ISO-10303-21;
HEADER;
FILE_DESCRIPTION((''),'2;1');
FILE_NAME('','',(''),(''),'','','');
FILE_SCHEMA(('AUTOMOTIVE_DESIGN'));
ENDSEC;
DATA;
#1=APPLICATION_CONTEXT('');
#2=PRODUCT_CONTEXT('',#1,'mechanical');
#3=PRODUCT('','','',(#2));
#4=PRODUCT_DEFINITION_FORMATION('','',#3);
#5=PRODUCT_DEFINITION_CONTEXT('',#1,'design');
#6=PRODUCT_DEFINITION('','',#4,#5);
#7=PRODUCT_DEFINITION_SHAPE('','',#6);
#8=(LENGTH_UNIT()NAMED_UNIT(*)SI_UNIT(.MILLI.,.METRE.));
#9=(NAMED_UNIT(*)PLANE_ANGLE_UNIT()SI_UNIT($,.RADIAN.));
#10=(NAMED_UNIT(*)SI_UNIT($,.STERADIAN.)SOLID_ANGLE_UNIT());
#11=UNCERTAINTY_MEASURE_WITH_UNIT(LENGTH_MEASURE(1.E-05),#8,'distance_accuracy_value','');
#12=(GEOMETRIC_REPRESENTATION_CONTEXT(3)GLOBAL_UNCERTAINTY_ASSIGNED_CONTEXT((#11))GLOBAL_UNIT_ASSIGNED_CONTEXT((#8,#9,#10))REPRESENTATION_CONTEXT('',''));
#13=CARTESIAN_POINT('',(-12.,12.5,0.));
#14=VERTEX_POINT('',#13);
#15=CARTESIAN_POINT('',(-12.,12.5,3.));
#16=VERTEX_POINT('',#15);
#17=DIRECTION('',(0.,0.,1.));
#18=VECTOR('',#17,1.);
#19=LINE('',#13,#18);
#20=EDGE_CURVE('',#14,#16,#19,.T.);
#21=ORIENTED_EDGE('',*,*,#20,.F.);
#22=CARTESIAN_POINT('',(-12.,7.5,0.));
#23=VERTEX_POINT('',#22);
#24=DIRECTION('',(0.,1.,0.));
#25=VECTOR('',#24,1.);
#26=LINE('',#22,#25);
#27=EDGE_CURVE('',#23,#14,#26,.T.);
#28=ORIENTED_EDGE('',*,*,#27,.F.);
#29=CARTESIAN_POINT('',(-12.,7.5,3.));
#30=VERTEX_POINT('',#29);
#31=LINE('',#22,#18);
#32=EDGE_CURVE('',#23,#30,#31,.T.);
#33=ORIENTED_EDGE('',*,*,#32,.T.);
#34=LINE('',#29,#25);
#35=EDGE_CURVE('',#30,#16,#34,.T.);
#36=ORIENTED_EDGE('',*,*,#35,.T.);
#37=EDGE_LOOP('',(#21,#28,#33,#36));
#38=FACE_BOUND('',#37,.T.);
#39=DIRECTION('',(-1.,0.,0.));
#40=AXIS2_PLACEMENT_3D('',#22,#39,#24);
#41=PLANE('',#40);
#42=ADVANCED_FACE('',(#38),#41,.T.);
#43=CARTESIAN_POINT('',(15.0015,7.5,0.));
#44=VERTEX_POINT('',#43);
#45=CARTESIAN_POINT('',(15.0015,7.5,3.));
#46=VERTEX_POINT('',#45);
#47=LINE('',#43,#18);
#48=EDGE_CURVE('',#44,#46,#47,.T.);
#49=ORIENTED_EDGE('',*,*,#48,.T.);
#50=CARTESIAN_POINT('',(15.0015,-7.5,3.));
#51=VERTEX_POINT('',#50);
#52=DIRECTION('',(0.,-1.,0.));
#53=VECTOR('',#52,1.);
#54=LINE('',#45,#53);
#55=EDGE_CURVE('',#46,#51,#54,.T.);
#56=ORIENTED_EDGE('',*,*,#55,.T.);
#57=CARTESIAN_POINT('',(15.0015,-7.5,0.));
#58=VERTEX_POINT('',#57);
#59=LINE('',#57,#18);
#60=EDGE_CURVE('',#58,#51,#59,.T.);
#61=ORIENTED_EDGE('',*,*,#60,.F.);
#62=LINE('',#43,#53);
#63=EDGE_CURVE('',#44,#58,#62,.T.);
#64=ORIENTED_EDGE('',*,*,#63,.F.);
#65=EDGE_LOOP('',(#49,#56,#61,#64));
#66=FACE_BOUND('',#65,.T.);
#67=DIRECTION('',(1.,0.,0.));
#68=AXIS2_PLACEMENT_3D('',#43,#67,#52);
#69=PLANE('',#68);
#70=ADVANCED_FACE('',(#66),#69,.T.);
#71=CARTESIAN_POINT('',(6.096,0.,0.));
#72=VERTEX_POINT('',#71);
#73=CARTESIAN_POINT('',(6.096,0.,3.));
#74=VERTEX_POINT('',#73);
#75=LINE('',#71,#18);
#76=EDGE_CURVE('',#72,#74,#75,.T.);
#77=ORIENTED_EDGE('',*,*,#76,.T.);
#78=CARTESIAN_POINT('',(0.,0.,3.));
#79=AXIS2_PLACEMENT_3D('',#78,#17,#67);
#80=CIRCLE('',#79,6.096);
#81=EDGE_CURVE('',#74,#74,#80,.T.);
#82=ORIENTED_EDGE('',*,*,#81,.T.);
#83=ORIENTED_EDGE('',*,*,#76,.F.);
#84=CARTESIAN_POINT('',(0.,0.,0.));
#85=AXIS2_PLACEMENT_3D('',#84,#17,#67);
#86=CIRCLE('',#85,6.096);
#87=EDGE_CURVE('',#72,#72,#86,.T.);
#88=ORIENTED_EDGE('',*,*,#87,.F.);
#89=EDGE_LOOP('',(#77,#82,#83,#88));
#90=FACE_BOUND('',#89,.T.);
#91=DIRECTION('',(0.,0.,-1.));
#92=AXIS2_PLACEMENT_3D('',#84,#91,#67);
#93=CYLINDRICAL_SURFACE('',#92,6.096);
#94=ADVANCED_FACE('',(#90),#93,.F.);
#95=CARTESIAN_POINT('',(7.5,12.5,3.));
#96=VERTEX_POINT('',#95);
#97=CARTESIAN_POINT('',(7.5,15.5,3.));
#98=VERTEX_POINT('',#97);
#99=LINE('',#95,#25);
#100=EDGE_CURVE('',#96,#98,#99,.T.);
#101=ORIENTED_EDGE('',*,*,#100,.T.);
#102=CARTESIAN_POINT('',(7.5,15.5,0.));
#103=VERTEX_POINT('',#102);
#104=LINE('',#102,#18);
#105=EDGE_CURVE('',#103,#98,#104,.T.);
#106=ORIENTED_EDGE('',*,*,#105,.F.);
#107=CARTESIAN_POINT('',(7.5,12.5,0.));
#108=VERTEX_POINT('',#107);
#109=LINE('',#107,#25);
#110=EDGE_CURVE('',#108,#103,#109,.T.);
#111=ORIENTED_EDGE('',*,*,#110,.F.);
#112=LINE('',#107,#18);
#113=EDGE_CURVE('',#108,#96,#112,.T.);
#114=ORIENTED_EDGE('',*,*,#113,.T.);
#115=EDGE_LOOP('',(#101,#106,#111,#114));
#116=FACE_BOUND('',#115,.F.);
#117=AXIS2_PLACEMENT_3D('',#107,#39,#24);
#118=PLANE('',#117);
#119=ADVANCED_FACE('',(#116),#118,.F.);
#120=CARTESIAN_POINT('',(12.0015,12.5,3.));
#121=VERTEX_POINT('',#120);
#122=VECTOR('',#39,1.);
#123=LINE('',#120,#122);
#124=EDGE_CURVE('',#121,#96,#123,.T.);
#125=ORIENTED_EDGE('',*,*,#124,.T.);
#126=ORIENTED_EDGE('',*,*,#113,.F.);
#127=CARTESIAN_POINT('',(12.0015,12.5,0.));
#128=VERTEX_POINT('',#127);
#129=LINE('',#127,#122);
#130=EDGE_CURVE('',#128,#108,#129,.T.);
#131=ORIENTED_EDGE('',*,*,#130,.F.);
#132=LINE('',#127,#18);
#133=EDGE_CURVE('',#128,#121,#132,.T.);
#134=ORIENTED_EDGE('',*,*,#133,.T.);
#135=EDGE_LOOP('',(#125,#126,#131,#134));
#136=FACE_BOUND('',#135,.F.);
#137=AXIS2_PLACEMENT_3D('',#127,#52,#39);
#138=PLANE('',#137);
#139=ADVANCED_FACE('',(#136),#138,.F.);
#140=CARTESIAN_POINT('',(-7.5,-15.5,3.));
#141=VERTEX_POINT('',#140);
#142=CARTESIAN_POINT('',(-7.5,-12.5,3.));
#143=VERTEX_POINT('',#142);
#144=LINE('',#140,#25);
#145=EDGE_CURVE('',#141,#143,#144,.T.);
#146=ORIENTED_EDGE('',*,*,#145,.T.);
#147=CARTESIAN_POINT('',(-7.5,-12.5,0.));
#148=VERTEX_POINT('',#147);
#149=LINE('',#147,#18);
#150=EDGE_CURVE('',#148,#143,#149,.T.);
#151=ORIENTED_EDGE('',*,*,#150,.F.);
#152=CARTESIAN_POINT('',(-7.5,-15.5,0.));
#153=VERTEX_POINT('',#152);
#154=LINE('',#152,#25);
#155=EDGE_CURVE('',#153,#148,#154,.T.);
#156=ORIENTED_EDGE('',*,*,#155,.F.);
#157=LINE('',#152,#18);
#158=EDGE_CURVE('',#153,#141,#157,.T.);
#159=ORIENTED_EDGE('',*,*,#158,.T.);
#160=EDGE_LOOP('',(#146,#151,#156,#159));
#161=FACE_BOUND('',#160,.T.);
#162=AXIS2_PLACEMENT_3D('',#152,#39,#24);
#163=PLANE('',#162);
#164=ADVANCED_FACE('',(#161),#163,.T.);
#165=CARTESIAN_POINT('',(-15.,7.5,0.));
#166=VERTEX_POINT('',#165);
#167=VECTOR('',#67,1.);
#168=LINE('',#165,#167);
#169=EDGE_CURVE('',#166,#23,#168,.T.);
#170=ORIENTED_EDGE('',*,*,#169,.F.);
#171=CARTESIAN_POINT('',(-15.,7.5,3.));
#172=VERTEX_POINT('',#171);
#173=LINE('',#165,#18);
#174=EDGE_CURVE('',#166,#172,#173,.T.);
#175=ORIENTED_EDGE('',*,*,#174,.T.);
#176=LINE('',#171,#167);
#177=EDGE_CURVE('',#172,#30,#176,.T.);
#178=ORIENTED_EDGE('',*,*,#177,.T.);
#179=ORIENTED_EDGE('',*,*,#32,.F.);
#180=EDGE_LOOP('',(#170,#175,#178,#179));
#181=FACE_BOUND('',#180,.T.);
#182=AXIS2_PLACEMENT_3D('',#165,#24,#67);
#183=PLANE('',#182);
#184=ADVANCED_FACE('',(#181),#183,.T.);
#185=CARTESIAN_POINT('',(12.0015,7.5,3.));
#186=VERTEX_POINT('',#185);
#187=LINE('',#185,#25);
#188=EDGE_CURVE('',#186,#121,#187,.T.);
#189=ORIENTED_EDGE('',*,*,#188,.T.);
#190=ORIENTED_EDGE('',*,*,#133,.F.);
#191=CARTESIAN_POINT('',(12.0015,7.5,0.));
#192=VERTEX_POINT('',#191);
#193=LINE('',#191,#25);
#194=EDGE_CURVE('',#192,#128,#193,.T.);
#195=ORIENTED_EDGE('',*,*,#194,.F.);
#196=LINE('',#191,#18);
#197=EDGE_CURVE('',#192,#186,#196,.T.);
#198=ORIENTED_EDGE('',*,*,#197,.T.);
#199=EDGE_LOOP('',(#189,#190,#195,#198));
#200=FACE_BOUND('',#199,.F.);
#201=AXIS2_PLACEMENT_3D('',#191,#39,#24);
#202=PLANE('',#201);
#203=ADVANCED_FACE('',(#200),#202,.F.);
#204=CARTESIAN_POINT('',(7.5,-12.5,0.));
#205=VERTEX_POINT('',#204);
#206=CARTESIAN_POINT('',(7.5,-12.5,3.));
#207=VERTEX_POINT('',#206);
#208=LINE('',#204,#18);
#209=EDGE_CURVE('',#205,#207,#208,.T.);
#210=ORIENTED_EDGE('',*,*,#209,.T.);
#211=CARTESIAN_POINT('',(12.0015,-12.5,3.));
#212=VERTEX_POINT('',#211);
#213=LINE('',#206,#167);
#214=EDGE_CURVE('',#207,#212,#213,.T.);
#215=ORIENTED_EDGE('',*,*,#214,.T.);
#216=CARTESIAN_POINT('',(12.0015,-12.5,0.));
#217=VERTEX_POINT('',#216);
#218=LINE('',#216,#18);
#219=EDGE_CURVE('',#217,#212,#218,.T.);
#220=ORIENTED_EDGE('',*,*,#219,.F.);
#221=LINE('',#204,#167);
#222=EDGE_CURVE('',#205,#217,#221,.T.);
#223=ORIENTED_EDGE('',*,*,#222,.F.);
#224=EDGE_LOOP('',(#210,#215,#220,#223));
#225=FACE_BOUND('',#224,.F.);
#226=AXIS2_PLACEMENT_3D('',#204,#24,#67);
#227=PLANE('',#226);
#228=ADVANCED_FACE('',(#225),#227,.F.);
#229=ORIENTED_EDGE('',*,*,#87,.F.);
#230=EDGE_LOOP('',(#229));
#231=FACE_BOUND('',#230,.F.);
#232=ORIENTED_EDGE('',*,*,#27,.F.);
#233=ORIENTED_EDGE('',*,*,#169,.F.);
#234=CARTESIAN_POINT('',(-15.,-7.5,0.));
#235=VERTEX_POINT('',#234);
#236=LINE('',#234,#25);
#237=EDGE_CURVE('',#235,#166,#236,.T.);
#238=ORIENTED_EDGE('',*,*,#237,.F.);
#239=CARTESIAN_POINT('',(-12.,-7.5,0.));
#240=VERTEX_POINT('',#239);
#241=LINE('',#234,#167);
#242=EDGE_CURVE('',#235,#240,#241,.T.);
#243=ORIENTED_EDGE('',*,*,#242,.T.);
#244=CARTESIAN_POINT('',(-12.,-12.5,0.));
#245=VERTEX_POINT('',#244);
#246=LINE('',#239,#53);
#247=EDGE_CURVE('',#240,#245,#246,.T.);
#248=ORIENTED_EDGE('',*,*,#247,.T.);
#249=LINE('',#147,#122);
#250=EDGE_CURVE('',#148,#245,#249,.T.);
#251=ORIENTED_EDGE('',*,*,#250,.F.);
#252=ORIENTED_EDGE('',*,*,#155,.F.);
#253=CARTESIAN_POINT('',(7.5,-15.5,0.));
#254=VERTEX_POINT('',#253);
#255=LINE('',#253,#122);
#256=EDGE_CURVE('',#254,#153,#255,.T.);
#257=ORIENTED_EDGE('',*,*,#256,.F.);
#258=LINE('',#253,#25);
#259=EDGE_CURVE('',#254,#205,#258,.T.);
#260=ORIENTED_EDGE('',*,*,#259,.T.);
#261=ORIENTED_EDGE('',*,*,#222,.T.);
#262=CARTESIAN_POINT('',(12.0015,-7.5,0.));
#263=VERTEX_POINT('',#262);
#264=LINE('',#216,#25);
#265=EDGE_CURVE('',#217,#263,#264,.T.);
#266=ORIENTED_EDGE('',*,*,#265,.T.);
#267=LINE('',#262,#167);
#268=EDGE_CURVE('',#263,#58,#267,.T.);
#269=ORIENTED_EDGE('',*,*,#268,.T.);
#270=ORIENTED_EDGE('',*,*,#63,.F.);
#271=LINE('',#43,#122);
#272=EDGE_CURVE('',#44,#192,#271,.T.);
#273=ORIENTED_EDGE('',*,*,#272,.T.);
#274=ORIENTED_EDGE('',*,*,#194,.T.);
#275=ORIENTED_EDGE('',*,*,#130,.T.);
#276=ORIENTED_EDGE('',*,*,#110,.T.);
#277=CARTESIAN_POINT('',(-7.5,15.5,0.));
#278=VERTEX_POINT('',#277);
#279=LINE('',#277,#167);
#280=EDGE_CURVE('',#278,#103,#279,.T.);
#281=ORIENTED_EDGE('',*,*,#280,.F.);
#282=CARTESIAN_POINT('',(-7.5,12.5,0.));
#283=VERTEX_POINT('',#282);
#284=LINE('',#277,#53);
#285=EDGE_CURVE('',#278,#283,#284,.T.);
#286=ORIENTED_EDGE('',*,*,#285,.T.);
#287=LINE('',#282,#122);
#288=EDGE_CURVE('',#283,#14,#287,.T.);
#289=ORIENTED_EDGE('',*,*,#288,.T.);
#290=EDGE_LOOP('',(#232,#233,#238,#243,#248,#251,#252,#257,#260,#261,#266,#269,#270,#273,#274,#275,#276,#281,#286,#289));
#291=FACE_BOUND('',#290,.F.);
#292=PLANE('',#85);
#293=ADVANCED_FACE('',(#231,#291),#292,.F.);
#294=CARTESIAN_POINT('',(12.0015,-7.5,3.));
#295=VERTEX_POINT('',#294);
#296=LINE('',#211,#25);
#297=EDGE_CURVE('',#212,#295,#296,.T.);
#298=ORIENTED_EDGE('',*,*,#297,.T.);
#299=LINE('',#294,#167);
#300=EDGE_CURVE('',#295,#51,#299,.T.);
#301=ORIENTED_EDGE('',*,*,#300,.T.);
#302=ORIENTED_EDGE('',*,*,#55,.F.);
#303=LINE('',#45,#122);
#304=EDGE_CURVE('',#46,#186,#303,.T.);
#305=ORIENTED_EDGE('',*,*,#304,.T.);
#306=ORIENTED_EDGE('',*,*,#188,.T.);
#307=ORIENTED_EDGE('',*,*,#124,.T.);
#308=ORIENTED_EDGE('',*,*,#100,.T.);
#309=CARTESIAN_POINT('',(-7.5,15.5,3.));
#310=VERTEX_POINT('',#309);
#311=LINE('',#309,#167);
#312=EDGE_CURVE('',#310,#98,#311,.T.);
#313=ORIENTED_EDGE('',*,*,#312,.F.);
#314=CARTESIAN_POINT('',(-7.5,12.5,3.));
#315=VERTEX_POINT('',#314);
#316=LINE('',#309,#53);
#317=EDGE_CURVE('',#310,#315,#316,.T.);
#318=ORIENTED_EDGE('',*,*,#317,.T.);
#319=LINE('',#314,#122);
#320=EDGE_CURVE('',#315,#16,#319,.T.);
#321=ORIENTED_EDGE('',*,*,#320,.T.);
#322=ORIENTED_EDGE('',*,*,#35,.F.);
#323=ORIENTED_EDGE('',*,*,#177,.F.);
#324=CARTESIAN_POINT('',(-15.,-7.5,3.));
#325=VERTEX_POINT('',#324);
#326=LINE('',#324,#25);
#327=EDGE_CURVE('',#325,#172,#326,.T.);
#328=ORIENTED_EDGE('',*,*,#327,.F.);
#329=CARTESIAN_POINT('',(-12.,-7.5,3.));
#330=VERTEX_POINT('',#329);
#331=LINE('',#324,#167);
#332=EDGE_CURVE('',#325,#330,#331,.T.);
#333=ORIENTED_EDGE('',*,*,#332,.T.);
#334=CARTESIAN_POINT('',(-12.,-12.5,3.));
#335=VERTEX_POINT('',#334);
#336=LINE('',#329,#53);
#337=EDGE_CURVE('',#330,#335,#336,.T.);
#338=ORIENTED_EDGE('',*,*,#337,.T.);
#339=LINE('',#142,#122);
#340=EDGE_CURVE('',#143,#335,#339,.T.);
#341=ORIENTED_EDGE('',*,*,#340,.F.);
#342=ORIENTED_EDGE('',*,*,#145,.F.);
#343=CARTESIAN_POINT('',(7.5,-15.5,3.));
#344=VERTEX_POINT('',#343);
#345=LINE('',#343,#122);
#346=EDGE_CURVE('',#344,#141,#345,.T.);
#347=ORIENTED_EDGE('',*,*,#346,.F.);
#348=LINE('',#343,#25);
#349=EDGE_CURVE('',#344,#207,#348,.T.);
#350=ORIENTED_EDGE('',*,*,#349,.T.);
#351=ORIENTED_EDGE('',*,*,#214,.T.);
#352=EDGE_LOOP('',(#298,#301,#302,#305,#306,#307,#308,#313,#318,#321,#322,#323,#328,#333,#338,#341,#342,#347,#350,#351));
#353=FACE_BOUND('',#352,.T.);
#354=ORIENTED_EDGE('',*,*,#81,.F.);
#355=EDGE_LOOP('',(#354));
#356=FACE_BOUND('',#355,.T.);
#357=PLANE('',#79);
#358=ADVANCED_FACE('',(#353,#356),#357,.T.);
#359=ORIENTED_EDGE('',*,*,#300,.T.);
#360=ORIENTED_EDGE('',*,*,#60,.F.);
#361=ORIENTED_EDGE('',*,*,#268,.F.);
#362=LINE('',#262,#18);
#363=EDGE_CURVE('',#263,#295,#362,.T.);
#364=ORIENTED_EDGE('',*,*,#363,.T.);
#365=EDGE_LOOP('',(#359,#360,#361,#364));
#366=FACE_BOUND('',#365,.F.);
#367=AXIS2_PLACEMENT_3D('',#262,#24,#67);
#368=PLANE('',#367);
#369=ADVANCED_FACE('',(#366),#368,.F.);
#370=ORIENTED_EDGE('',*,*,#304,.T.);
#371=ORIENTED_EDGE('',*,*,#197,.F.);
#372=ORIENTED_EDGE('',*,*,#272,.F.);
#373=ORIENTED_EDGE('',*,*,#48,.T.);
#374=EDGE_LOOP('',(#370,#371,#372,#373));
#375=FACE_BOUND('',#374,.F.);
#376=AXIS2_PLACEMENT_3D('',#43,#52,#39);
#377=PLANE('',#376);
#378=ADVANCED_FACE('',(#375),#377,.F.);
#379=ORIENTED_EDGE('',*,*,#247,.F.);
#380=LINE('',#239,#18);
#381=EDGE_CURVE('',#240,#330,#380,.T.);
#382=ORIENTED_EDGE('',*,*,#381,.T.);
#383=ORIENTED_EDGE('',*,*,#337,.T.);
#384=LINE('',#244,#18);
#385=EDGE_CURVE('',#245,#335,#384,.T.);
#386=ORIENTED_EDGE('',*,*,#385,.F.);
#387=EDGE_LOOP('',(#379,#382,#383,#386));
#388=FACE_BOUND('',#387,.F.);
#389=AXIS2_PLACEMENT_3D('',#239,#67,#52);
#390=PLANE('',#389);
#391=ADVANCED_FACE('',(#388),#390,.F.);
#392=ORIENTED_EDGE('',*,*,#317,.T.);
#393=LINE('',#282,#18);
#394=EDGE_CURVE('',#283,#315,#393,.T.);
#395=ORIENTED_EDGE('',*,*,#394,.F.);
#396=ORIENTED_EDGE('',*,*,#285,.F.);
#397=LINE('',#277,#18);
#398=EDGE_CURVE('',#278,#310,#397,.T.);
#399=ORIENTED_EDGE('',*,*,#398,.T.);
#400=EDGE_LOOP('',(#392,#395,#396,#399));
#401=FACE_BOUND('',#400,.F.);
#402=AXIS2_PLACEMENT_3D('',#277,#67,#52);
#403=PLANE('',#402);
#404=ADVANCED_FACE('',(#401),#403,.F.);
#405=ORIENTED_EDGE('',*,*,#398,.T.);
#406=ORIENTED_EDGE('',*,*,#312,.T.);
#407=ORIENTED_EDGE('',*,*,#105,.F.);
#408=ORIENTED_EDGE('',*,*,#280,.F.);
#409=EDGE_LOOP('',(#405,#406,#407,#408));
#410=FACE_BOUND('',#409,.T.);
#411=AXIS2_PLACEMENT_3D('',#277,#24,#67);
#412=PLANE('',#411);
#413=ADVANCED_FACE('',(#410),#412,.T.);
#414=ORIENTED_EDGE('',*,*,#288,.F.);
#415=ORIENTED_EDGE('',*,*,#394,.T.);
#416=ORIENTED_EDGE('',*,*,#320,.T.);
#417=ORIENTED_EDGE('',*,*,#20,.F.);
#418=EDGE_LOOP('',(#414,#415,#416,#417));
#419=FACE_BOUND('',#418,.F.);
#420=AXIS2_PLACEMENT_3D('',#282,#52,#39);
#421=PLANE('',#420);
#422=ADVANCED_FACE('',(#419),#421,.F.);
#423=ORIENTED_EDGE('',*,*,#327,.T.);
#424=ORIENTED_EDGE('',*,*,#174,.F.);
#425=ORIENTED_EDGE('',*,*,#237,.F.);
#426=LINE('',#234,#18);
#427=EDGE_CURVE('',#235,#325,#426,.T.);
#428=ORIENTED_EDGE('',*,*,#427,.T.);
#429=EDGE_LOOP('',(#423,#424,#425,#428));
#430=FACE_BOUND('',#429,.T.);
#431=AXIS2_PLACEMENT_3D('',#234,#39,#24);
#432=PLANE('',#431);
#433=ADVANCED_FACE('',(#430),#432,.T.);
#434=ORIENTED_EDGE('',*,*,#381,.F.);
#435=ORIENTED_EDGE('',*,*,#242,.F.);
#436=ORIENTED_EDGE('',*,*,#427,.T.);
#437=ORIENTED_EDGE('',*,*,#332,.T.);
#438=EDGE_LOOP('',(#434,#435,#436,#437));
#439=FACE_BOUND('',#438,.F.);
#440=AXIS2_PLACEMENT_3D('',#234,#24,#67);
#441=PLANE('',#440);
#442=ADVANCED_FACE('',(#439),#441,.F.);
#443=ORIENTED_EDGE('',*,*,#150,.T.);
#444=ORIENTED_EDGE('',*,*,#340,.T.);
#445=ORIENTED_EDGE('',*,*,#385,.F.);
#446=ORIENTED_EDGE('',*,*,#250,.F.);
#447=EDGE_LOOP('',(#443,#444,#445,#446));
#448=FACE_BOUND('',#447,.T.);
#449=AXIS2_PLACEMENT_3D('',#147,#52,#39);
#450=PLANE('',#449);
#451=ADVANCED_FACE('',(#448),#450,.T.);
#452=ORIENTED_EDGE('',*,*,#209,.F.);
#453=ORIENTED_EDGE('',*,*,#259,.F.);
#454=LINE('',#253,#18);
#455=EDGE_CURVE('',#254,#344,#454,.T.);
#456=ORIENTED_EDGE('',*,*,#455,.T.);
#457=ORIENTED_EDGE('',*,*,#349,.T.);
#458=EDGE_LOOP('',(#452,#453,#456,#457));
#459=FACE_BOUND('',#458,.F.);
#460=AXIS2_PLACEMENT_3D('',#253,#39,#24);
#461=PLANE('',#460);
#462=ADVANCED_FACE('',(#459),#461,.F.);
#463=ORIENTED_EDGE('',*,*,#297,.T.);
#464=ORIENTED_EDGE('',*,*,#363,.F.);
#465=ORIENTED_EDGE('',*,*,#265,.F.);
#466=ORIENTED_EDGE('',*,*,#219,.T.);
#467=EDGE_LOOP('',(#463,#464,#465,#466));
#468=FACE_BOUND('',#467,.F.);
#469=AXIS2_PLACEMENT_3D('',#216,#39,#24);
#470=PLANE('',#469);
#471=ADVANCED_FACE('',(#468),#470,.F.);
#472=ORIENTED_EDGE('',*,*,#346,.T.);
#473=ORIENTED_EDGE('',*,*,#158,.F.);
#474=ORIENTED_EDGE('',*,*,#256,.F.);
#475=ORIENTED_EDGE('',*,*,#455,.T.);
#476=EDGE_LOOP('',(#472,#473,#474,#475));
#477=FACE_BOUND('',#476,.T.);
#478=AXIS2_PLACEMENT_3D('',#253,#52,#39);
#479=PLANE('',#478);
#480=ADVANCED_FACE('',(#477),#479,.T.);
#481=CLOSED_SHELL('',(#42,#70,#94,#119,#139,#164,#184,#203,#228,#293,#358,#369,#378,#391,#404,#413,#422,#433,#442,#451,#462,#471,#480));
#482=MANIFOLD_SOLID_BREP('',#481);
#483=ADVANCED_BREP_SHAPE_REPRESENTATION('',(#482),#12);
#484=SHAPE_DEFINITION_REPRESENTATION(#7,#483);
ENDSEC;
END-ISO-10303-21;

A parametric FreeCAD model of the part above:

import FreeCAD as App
import Part
import Sketcher
from FreeCAD import Vector

doc = App.newDocument("Part")
body = doc.addObject("PartDesign::Body", "Body")

# Sketch on XY plane
sketch1 = doc.addObject("Sketcher::SketchObject", "Sketch")
body.addObject(sketch1)
sketch1.AttachmentSupport = (doc.XY_Plane, [""])
sketch1.MapMode = "FlatFace"
sketch1.addGeometry([
    Part.LineSegment(Vector(15.0015, -7.5, 0), Vector(15.0015, 7.5, 0)),  # 0
    Part.LineSegment(Vector(15.0015, 7.5, 0), Vector(12.0015, 7.5, 0)),  # 1
    Part.LineSegment(Vector(12.0015, 7.5, 0), Vector(12.0015, 12.5, 0)),  # 2
    Part.LineSegment(Vector(12.0015, 12.5, 0), Vector(7.5, 12.5, 0)),  # 3
    Part.LineSegment(Vector(7.5, 12.5, 0), Vector(7.5, 15.5, 0)),  # 4
    Part.LineSegment(Vector(7.5, 15.5, 0), Vector(-7.5, 15.5, 0)),  # 5
    Part.LineSegment(Vector(-7.5, 15.5, 0), Vector(-7.5, 12.5, 0)),  # 6
    Part.LineSegment(Vector(-7.5, 12.5, 0), Vector(-12, 12.5, 0)),  # 7
    Part.LineSegment(Vector(-12, 12.5, 0), Vector(-12, 7.5, 0)),  # 8
    Part.LineSegment(Vector(-12, 7.5, 0), Vector(-15, 7.5, 0)),  # 9
    Part.LineSegment(Vector(-15, 7.5, 0), Vector(-15, -7.5, 0)),  # 10
    Part.LineSegment(Vector(-15, -7.5, 0), Vector(-12, -7.5, 0)),  # 11
    Part.LineSegment(Vector(-12, -7.5, 0), Vector(-12, -12.5, 0)),  # 12
    Part.LineSegment(Vector(-12, -12.5, 0), Vector(-7.5, -12.5, 0)),  # 13
    Part.LineSegment(Vector(-7.5, -12.5, 0), Vector(-7.5, -15.5, 0)),  # 14
    Part.LineSegment(Vector(-7.5, -15.5, 0), Vector(7.5, -15.5, 0)),  # 15
    Part.LineSegment(Vector(7.5, -15.5, 0), Vector(7.5, -12.5, 0)),  # 16
    Part.LineSegment(Vector(7.5, -12.5, 0), Vector(12.0015, -12.5, 0)),  # 17
    Part.LineSegment(Vector(12.0015, -12.5, 0), Vector(12.0015, -7.5, 0)),  # 18
    Part.LineSegment(Vector(12.0015, -7.5, 0), Vector(15.0015, -7.5, 0)),  # 19
    Part.Circle(Vector(0, 0, 0), Vector(0, 0, 1), 6.096),  # 20
], False)
sketch1.addConstraint([
    Sketcher.Constraint("Coincident", 0, 2, 1, 1),
    Sketcher.Constraint("Coincident", 1, 2, 2, 1),
    Sketcher.Constraint("Coincident", 2, 2, 3, 1),
    Sketcher.Constraint("Coincident", 3, 2, 4, 1),
    Sketcher.Constraint("Coincident", 4, 2, 5, 1),
    Sketcher.Constraint("Coincident", 5, 2, 6, 1),
    Sketcher.Constraint("Coincident", 6, 2, 7, 1),
    Sketcher.Constraint("Coincident", 7, 2, 8, 1),
    Sketcher.Constraint("Coincident", 8, 2, 9, 1),
    Sketcher.Constraint("Coincident", 9, 2, 10, 1),
    Sketcher.Constraint("Coincident", 10, 2, 11, 1),
    Sketcher.Constraint("Coincident", 11, 2, 12, 1),
    Sketcher.Constraint("Coincident", 12, 2, 13, 1),
    Sketcher.Constraint("Coincident", 13, 2, 14, 1),
    Sketcher.Constraint("Coincident", 14, 2, 15, 1),
    Sketcher.Constraint("Coincident", 15, 2, 16, 1),
    Sketcher.Constraint("Coincident", 16, 2, 17, 1),
    Sketcher.Constraint("Coincident", 17, 2, 18, 1),
    Sketcher.Constraint("Coincident", 18, 2, 19, 1),
    Sketcher.Constraint("Coincident", 19, 2, 0, 1),
    Sketcher.Constraint("Vertical", 0),
    Sketcher.Constraint("Horizontal", 1),
    Sketcher.Constraint("Vertical", 2),
    Sketcher.Constraint("Horizontal", 3),
    Sketcher.Constraint("Vertical", 4),
    Sketcher.Constraint("Horizontal", 5),
    Sketcher.Constraint("Vertical", 6),
    Sketcher.Constraint("Horizontal", 7),
    Sketcher.Constraint("Vertical", 8),
    Sketcher.Constraint("Horizontal", 9),
    Sketcher.Constraint("Vertical", 10),
    Sketcher.Constraint("Horizontal", 11),
    Sketcher.Constraint("Vertical", 12),
    Sketcher.Constraint("Horizontal", 13),
    Sketcher.Constraint("Vertical", 14),
    Sketcher.Constraint("Horizontal", 15),
    Sketcher.Constraint("Vertical", 16),
    Sketcher.Constraint("Horizontal", 17),
    Sketcher.Constraint("Vertical", 18),
    Sketcher.Constraint("Horizontal", 19),
    Sketcher.Constraint("Coincident", 20, 3, -1, 1),
    Sketcher.Constraint("Symmetric", 3, 2, 13, 2, -1, 1),
    Sketcher.Constraint("Symmetric", 5, 2, 15, 2, -1, 1),
    Sketcher.Constraint("Symmetric", 3, 2, 6, 2, -2),
    Sketcher.Constraint("Symmetric", 8, 2, 11, 2, -1),
    Sketcher.Constraint("Symmetric", 2, 2, 17, 2, -1),
    Sketcher.Constraint("Horizontal", 1, 2, 8, 2),
    Sketcher.Constraint("Horizontal", 11, 2, 18, 2),
    Sketcher.Constraint("Equal", 1, 9),
    Sketcher.Constraint("Equal", 15, 0),
    Sketcher.Constraint("Equal", 19, 4),
    Sketcher.Constraint("DistanceX", 1, 2, 1, 1, 3.0),
    Sketcher.Constraint("DistanceX", 5, 2, 5, 1, 15.0),
    Sketcher.Constraint("Diameter", 20, 12.192),
    Sketcher.Constraint("DistanceX", 9, 2, -1, 1, 15.0),
    Sketcher.Constraint("DistanceY", 2, 1, 2, 2, 5.0),
    Sketcher.Constraint("DistanceX", 3, 2, 3, 1, 4.5015),
])
pad1 = doc.addObject("PartDesign::Pad", "Pad")
body.addObject(pad1)
pad1.Profile = sketch1
pad1.Length = 3

doc.recompute()
